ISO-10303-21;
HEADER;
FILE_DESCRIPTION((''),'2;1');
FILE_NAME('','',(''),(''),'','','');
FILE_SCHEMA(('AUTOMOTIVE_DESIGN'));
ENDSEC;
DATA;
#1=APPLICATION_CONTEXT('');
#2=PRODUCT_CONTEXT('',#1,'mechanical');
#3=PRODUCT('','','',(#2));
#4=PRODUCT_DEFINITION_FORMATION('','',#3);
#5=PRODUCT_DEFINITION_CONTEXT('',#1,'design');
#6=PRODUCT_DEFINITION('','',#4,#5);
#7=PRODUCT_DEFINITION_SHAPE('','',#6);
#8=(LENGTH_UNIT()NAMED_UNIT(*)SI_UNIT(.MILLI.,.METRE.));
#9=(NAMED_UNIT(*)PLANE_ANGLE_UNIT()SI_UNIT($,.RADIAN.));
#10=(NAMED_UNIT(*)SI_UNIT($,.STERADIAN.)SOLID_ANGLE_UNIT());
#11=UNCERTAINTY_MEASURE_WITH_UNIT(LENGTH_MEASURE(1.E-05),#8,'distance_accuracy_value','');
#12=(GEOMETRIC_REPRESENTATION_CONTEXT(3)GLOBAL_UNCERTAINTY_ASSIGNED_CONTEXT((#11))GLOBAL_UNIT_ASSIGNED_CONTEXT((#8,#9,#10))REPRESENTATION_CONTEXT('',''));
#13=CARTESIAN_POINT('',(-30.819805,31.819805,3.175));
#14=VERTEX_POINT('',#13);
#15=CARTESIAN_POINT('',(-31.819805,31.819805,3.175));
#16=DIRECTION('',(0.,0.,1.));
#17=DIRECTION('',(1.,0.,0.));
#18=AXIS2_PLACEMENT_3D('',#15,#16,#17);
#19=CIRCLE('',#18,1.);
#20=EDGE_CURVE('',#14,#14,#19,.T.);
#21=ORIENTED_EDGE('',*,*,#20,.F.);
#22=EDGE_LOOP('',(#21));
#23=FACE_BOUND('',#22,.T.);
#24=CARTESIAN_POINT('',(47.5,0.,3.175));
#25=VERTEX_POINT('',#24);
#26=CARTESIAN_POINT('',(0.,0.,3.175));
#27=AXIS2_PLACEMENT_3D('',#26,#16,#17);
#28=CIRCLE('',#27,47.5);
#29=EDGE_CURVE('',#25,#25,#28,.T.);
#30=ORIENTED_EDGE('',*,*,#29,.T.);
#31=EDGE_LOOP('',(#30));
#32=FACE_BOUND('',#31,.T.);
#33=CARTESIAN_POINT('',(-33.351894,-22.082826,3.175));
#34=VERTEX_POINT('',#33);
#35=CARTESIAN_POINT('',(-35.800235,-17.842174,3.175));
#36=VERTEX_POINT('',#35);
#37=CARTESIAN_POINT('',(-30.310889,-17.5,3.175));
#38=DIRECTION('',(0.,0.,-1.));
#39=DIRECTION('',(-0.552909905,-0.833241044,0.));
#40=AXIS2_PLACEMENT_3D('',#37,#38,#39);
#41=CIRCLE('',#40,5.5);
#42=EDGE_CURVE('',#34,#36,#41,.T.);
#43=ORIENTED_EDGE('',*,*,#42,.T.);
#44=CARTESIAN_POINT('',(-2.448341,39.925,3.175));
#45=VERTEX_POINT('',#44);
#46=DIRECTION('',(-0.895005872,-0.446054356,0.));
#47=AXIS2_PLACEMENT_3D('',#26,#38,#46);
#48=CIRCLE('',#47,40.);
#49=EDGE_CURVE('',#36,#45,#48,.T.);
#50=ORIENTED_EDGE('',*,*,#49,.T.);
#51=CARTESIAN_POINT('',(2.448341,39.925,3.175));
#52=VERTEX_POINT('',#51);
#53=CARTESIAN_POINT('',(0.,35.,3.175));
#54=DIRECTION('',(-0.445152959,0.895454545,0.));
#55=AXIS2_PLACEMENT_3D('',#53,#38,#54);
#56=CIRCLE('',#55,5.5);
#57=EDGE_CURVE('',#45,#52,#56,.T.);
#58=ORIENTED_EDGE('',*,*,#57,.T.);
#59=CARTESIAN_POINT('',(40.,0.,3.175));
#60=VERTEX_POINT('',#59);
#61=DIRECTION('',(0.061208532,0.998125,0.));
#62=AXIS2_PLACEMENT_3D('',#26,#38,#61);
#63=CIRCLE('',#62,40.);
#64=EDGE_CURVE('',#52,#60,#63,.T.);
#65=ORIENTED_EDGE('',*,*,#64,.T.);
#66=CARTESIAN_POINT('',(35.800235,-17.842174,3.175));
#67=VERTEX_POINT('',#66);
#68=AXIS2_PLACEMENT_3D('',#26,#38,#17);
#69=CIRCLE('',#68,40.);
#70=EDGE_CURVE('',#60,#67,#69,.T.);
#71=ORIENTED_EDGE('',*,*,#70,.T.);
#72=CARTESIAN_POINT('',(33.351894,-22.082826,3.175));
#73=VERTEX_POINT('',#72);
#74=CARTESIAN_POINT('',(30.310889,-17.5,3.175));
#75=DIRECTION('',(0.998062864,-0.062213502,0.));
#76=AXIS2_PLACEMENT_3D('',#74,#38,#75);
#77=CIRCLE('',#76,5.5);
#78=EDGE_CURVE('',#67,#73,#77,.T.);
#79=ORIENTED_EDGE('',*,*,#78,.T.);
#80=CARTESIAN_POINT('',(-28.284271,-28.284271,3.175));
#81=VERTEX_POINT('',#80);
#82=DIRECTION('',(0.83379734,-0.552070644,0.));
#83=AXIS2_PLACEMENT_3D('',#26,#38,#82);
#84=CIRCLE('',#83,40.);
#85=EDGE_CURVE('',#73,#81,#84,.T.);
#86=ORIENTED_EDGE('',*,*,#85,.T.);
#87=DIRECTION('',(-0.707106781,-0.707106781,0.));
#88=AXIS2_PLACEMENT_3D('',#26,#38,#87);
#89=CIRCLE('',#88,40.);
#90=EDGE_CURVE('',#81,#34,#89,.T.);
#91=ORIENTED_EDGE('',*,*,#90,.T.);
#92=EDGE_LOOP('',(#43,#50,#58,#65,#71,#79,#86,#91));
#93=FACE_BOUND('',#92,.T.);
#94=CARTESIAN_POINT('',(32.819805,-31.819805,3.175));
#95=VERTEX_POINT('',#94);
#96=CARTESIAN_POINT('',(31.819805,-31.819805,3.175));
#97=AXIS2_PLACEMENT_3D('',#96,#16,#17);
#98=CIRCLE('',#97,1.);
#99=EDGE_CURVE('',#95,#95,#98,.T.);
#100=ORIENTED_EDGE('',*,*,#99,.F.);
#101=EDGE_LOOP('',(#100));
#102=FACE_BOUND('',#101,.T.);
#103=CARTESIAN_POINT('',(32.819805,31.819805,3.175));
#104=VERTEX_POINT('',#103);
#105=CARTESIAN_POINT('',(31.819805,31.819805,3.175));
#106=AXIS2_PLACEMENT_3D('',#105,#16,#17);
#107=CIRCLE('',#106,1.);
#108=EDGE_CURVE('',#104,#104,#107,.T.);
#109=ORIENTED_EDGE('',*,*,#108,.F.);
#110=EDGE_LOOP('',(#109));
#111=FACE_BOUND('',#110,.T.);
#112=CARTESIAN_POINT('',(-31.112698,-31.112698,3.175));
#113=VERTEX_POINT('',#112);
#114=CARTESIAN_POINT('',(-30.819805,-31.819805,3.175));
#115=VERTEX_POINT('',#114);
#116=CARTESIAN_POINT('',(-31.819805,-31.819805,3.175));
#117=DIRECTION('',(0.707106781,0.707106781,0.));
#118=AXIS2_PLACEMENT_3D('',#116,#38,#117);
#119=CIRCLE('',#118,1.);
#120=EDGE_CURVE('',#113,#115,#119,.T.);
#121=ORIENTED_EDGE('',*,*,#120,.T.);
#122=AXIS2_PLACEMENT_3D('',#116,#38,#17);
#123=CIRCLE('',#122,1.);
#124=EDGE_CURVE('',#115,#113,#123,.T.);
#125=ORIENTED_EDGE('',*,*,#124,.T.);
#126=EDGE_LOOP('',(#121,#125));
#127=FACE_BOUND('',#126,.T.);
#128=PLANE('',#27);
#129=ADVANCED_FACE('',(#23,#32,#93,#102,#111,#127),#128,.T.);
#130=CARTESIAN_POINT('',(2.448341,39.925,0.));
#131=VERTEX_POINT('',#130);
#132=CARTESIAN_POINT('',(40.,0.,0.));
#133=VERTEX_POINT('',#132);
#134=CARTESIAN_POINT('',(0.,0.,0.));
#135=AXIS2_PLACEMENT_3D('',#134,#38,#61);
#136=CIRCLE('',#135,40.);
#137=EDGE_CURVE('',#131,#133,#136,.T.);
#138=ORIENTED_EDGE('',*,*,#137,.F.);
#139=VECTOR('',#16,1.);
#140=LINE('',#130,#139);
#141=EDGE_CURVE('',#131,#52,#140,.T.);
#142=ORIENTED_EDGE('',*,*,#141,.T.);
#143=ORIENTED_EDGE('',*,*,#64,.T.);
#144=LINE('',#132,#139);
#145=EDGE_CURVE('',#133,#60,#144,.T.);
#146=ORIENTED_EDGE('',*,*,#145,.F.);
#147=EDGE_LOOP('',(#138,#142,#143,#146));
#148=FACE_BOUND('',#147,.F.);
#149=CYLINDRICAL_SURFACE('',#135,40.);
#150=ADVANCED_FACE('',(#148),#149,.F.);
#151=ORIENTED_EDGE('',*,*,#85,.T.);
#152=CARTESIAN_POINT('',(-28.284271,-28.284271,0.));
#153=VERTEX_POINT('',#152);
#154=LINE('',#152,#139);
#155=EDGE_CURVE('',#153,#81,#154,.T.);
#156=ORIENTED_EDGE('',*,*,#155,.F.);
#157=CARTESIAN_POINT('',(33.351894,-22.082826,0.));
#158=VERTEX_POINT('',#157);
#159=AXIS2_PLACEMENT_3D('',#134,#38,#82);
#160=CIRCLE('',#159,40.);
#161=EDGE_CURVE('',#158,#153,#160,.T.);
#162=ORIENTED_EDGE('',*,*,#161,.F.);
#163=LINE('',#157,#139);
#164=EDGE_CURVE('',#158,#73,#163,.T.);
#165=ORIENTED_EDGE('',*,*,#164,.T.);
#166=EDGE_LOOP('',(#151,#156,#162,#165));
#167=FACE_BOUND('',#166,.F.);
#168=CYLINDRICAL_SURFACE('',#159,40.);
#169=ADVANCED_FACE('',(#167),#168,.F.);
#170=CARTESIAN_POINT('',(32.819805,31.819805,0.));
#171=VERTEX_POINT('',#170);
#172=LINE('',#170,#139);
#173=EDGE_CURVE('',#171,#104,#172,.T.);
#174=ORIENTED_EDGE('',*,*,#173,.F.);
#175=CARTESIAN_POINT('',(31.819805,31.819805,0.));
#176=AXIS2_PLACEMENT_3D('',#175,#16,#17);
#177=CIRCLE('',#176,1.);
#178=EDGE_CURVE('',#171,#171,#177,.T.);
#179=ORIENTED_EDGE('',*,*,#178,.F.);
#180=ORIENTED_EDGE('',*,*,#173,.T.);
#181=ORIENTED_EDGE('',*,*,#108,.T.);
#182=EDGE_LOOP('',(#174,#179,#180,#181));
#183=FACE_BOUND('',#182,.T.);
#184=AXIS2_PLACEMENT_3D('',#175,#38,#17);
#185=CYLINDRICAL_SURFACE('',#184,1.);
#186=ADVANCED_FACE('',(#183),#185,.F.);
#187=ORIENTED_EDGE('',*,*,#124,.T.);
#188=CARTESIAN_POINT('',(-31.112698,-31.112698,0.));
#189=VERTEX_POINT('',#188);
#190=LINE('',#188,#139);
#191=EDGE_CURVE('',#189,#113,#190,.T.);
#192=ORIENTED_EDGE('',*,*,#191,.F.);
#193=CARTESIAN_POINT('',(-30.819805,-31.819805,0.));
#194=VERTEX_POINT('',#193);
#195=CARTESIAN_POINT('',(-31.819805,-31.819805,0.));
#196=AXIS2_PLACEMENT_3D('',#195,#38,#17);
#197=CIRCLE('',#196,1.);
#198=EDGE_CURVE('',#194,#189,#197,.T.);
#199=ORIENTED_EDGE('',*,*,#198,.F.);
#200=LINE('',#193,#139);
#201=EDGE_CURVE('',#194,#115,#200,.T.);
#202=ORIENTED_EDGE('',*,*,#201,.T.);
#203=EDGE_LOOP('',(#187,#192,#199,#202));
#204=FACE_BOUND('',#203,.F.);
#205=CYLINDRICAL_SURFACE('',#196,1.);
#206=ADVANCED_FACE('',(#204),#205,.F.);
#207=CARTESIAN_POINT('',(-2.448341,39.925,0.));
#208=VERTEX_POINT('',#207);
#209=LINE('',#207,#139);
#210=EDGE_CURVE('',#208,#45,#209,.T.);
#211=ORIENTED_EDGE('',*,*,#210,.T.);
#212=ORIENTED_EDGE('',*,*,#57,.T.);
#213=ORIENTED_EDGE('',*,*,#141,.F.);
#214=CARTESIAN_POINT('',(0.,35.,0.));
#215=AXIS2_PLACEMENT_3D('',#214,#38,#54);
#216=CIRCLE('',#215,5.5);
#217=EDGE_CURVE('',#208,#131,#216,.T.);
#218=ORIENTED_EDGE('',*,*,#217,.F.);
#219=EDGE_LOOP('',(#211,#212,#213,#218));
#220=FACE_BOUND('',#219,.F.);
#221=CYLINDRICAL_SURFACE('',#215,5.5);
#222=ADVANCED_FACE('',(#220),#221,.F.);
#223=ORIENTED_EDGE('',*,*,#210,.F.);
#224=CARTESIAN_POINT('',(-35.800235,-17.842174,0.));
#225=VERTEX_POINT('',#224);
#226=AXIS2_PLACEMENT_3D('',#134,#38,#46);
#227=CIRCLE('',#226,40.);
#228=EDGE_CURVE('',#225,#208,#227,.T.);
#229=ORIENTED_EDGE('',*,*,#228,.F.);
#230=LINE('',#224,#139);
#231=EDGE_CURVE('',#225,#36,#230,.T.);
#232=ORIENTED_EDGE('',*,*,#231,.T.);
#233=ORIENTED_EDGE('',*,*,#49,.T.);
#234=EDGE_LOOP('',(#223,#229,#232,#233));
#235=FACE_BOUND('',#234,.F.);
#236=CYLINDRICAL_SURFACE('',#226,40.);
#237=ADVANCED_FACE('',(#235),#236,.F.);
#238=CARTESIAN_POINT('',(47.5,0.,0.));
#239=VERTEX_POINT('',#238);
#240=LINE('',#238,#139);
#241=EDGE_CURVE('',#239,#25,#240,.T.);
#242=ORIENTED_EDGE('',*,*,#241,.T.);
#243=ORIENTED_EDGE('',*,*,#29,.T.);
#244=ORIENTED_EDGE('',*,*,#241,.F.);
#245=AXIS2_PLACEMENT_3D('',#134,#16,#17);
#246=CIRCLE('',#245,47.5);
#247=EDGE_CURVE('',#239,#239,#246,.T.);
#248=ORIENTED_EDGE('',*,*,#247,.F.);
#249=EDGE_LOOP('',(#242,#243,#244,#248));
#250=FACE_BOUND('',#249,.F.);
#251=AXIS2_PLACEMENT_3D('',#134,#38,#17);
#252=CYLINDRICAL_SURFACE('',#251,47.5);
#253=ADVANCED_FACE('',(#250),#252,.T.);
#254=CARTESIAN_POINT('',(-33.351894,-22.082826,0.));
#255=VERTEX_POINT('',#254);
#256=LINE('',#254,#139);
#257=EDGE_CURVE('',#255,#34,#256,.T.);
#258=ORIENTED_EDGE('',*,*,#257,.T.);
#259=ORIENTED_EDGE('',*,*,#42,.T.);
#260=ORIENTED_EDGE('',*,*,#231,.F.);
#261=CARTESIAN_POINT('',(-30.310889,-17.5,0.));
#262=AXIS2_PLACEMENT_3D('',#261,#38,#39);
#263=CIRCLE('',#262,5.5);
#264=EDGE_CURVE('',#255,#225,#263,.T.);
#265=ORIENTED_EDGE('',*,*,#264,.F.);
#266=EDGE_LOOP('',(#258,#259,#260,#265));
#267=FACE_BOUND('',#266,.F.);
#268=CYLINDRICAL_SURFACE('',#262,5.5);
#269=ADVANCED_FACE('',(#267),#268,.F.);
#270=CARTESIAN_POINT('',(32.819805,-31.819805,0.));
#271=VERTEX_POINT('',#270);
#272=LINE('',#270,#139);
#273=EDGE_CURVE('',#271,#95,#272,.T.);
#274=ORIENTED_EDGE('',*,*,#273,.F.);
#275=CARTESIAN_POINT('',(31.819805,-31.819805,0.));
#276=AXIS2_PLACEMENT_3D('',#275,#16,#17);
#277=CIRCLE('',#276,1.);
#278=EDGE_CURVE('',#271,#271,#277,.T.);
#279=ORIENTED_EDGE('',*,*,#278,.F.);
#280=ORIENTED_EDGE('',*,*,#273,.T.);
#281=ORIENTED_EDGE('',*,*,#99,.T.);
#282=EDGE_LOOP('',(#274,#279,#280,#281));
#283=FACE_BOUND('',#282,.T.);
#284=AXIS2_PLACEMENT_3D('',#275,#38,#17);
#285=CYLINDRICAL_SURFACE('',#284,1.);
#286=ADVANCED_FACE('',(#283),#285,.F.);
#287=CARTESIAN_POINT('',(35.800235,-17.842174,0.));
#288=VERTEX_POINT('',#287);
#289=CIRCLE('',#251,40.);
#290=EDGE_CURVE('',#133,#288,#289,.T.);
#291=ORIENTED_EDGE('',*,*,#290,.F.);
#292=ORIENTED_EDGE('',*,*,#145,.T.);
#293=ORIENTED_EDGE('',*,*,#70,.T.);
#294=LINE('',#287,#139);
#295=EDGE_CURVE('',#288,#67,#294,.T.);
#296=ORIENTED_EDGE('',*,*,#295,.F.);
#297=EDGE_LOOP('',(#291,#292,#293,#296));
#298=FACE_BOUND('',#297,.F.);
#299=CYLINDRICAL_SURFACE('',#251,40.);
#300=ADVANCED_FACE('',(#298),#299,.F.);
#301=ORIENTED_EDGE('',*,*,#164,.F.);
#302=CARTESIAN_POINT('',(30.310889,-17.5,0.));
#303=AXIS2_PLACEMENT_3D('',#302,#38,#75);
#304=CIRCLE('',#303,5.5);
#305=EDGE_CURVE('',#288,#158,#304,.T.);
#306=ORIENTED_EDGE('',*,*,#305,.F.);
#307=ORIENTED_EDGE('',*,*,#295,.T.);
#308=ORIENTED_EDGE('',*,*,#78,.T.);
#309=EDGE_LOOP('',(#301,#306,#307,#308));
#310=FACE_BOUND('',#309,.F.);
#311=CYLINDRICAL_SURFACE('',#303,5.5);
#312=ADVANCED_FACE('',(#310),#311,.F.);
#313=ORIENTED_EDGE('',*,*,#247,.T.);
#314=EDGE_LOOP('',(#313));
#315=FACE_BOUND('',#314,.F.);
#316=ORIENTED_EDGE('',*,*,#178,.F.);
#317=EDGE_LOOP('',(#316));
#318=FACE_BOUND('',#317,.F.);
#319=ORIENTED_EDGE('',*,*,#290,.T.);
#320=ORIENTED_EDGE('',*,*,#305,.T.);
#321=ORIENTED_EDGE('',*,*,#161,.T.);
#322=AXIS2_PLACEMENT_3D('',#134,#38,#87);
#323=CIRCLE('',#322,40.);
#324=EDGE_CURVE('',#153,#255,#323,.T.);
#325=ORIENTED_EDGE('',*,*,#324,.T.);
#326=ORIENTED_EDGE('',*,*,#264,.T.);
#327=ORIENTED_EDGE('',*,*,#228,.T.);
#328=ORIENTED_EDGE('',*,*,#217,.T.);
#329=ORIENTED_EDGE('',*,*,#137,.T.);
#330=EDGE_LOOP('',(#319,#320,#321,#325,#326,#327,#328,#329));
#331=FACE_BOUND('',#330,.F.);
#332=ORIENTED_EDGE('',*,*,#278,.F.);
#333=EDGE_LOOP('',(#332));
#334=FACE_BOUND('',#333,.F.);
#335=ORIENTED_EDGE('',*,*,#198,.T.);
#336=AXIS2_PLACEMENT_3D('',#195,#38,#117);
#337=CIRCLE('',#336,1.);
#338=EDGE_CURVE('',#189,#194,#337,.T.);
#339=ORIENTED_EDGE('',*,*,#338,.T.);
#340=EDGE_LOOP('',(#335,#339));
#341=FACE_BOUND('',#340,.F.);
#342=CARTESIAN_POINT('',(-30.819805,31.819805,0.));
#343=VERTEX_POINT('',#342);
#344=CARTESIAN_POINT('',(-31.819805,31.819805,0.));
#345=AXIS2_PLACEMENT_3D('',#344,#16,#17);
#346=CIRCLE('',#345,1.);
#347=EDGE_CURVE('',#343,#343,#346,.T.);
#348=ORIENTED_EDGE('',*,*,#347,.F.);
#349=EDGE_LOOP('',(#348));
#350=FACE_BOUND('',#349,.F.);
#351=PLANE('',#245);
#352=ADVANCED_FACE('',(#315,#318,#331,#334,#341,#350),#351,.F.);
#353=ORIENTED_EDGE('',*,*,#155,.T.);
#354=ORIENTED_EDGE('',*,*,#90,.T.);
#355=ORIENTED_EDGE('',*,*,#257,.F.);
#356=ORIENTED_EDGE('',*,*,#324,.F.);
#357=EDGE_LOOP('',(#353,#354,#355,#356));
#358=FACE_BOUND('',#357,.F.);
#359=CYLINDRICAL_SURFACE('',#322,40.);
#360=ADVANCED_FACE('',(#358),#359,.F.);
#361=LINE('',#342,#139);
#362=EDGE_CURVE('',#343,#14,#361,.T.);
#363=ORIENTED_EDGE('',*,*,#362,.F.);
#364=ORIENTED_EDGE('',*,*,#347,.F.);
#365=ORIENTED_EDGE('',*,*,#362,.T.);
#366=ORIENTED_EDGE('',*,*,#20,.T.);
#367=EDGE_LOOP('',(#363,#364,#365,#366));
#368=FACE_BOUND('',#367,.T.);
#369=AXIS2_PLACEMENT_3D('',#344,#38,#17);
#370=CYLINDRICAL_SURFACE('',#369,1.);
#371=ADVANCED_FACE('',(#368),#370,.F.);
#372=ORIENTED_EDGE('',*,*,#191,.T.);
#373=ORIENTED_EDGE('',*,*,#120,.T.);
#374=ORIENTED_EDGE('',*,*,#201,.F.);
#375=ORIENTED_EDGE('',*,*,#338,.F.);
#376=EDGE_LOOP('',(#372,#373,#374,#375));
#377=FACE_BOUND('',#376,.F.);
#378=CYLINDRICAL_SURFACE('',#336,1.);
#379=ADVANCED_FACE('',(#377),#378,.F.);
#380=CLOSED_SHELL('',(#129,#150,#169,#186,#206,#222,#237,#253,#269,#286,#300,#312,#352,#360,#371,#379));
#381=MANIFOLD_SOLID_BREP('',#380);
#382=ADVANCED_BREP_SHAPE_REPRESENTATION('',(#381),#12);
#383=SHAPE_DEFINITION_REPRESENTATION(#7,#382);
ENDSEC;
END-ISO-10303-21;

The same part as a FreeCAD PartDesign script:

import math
import FreeCAD as App
import Part
import Sketcher
Q = App.Units.Quantity

doc = App.newDocument("Part")
body = doc.addObject("PartDesign::Body", "Body")

# Sketch on XY plane
sketch1 = body.newObject("Sketcher::SketchObject", "Sketch")
sketch1.AttachmentSupport = (doc.getObject("XY_Plane"), [""])
sketch1.MapMode = "FlatFace"
sketch1.addGeometry([
    Part.Circle(App.Vector(0, 0, 0), App.Vector(0, 0, 1), 47.5),  # 0
    Part.ArcOfCircle(Part.Circle(App.Vector(-31.8, -31.8, 0), App.Vector(0, 0, 1), 1), math.radians(0), math.radians(45)),  # 1
    Part.ArcOfCircle(Part.Circle(App.Vector(-31.8, -31.8, 0), App.Vector(0, 0, 1), 1), math.radians(45), math.radians(360)),  # 2
    Part.Circle(App.Vector(31.8, -31.8, 0), App.Vector(0, 0, 1), 1),  # 3
    Part.Circle(App.Vector(-31.8, 31.8, 0), App.Vector(0, 0, 1), 1),  # 4
    Part.ArcOfCircle(Part.Circle(App.Vector(30.3, -17.5, 0), App.Vector(0, 0, 1), 5.5), math.radians(-56), math.radians(-4)),  # 5
    Part.ArcOfCircle(Part.Circle(App.Vector(0, 0, 0), App.Vector(0, 0, 1), 40), math.radians(-135), math.radians(-34)),  # 6
    Part.ArcOfCircle(Part.Circle(App.Vector(0, 0, 0), App.Vector(0, 0, 1), 40), math.radians(-146.49), math.radians(-135)),  # 7
    Part.ArcOfCircle(Part.Circle(App.Vector(-30.3, -17.5, 0), App.Vector(0, 0, 1), 5.5), math.radians(-176), math.radians(-124)),  # 8
    Part.ArcOfCircle(Part.Circle(App.Vector(0, 0, 0), App.Vector(0, 0, 1), 40), math.radians(94), math.radians(206)),  # 9
    Part.ArcOfCircle(Part.Circle(App.Vector(0, 35, 0), App.Vector(0, 0, 1), 5.5), math.radians(64), math.radians(116)),  # 10
    Part.ArcOfCircle(Part.Circle(App.Vector(0, 0, 0), App.Vector(0, 0, 1), 40), math.radians(0), math.radians(86)),  # 11
    Part.ArcOfCircle(Part.Circle(App.Vector(0, 0, 0), App.Vector(0, 0, 1), 40), math.radians(-26), math.radians(0)),  # 12
    Part.Circle(App.Vector(31.8, 31.8, 0), App.Vector(0, 0, 1), 1),  # 13
], False)
sketch1.addConstraint([
    Sketcher.Constraint("Tangent", 1, 1, 2, 2),
    Sketcher.Constraint("Coincident", 2, 1, 1, 2),
    Sketcher.Constraint("Coincident", 5, 1, 6, 2),
    Sketcher.Constraint("Tangent", 6, 1, 7, 2),
    Sketcher.Constraint("Coincident", 7, 1, 8, 2),
    Sketcher.Constraint("Coincident", 8, 1, 9, 2),
    Sketcher.Constraint("Coincident", 9, 1, 10, 2),
    Sketcher.Constraint("Coincident", 10, 1, 11, 2),
    Sketcher.Constraint("Tangent", 11, 1, 12, 2),
    Sketcher.Constraint("Coincident", 12, 1, 5, 2),
    Sketcher.Constraint("Coincident", 0, 3, -1, 1),
    Sketcher.Constraint("Coincident", 6, 3, -1, 1),
    Sketcher.Constraint("Coincident", 9, 3, -1, 1),
    Sketcher.Constraint("Coincident", 11, 3, -1, 1),
    Sketcher.Constraint("Equal", 2, 3),
    Sketcher.Constraint("Equal", 3, 4),
    Sketcher.Constraint("Equal", 6, 7),
    Sketcher.Constraint("Equal", 5, 8),
    Sketcher.Constraint("Equal", 7, 9),
    Sketcher.Constraint("Equal", 8, 10),
    Sketcher.Constraint("Equal", 9, 11),
    Sketcher.Constraint("Equal", 11, 12),
    Sketcher.Constraint("Equal", 4, 13),
    Sketcher.Constraint("Symmetric", 3, 3, 4, 3, -1, 1),
    Sketcher.Constraint("Symmetric", 1, 3, 13, 3, -1, 1),
    Sketcher.Constraint("Symmetric", 1, 3, 3, 3, -2),
    Sketcher.Constraint("Symmetric", 5, 3, 8, 3, -2),
    Sketcher.Constraint("PointOnObject", 10, 3, -2),
    Sketcher.Constraint("PointOnObject", 11, 1, -1),
    Sketcher.Constraint("Horizontal", 3, 3, 1, 1),
    Sketcher.Constraint("Diameter", 0, Q("95 mm")),
    Sketcher.Constraint("Diameter", 3, Q("2 mm")),
    Sketcher.Constraint("Radius", 6, Q("40 mm")),
    Sketcher.Constraint("Radius", 5, Q("5.5 mm")),
    Sketcher.Constraint("DistanceY", -1, 1, 10, 3, Q("35 mm")),
    Sketcher.Constraint("DistanceY", 5, 3, -1, 1, Q("17.5 mm")),
    Sketcher.Constraint("DistanceX", 2, 1, -1, 1, Q("31.112698 mm")),
    Sketcher.Constraint("DistanceY", 2, 1, -1, 1, Q("31.112698 mm")),
    Sketcher.Constraint("DistanceX", -1, 1, 5, 3, Q("30.310889 mm")),
    Sketcher.Constraint("DistanceX", 6, 1, -1, 1, Q("28.284271 mm")),
    Sketcher.Constraint("DistanceX", 1, 3, 3, 3, Q("63.63961 mm")),
])
pad1 = body.newObject("PartDesign::Pad", "Pad")
pad1.Profile = sketch1
pad1.Length = 3.175

doc.recompute()
